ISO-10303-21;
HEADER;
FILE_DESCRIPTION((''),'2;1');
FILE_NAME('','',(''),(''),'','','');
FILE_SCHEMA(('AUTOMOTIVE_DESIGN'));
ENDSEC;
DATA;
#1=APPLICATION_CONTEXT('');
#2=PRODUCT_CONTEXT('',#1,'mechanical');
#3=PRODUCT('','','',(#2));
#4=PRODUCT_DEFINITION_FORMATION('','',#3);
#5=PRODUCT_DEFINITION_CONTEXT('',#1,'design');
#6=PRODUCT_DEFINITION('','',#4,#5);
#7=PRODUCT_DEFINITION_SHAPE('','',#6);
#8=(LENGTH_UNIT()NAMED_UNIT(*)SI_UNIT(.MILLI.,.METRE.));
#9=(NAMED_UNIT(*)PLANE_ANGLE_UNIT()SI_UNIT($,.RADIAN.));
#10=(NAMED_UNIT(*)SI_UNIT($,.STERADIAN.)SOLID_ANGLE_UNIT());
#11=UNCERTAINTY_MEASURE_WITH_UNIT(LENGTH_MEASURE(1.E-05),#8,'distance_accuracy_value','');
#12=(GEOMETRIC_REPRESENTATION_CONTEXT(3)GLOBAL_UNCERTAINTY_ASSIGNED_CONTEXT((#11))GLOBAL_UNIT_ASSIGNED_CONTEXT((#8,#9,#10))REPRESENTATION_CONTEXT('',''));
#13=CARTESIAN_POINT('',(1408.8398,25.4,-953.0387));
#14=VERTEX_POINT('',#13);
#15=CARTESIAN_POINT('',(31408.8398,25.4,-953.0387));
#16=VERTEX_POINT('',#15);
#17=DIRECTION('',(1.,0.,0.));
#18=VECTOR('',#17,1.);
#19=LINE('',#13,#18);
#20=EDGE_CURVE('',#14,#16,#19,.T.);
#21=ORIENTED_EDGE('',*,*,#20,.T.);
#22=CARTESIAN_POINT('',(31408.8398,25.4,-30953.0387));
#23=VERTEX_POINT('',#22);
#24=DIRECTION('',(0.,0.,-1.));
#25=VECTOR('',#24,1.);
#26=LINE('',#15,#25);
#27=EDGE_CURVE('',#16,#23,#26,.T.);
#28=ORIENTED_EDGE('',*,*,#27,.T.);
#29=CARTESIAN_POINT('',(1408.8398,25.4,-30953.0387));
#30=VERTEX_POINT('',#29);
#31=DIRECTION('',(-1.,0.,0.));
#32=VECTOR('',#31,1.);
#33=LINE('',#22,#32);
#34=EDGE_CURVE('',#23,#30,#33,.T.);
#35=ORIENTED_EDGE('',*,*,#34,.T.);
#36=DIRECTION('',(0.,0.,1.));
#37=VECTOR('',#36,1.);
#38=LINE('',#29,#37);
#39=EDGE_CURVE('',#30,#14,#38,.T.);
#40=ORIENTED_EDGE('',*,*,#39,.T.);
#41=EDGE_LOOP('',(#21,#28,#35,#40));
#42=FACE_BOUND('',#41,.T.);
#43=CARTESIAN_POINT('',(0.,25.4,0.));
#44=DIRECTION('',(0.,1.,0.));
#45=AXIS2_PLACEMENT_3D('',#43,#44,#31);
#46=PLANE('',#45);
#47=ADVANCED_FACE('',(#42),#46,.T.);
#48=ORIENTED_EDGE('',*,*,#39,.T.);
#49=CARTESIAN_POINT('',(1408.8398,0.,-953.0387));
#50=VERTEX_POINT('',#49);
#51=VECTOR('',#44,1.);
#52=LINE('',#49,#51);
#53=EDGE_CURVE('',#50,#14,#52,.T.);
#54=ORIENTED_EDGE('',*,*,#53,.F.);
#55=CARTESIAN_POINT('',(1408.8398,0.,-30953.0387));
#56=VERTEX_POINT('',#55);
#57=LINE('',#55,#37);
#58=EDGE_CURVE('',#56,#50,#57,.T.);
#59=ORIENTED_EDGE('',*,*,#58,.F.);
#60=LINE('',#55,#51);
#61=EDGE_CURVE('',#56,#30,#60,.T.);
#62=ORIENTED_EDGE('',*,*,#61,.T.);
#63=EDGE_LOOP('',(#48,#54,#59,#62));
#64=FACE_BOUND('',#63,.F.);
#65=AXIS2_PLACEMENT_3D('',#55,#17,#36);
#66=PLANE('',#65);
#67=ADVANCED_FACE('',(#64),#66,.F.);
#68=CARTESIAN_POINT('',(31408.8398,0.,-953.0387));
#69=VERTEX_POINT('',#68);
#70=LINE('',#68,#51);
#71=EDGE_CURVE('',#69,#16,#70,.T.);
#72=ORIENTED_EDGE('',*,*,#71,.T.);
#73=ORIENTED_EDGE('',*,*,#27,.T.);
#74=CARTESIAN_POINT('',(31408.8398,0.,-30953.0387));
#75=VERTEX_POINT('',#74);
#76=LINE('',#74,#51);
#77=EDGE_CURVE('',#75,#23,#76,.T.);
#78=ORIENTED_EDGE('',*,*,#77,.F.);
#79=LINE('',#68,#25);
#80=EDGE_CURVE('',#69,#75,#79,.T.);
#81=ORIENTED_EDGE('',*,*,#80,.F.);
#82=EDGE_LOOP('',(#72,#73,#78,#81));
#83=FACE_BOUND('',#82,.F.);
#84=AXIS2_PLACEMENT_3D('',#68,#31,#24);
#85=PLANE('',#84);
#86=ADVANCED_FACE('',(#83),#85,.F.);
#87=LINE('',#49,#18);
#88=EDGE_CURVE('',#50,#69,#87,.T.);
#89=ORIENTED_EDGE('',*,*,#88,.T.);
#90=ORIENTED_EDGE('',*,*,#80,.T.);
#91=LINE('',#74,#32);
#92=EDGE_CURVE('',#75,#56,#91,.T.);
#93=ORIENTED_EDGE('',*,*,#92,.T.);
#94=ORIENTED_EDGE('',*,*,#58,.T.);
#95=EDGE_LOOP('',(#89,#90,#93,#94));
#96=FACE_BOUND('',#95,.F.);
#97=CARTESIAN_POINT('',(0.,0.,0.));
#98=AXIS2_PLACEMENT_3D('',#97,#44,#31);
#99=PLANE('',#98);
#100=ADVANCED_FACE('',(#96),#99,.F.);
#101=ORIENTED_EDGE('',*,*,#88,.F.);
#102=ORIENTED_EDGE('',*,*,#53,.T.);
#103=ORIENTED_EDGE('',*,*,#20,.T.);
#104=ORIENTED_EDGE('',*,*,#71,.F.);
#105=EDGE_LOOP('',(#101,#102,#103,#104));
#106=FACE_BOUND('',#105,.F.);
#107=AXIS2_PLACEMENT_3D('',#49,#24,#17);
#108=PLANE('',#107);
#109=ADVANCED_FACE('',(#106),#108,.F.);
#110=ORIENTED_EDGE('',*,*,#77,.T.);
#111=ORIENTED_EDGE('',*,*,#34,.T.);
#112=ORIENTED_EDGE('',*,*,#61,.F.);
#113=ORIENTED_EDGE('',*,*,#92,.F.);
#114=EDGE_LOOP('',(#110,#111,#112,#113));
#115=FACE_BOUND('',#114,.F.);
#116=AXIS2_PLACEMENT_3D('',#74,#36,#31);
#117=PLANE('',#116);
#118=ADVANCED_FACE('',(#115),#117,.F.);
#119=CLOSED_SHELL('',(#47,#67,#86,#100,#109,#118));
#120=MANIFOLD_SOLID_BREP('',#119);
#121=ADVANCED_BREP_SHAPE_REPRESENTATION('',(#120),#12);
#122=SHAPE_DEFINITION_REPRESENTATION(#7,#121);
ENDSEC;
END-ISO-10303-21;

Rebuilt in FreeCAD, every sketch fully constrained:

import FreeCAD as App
import Part
import Sketcher
from FreeCAD import Vector
Q = App.Units.Quantity

doc = App.newDocument("Part")
body = doc.addObject("PartDesign::Body", "Body")

# Sketch on XZ plane
sketch1 = body.newObject("Sketcher::SketchObject", "Sketch")
sketch1.AttachmentSupport = (doc.getObject("XZ_Plane"), [""])
sketch1.MapMode = "FlatFace"
sketch1.addGeometry(Part.LineSegment(Vector(1409, -30953, 0), Vector(1409, -953, 0)), False)
sketch1.addGeometry(Part.LineSegment(Vector(1409, -953, 0), Vector(31409, -953, 0)), False)
sketch1.addGeometry(Part.LineSegment(Vector(31409, -953, 0), Vector(31409, -30953, 0)), False)
sketch1.addGeometry(Part.LineSegment(Vector(31409, -30953, 0), Vector(1409, -30953, 0)), False)
sketch1.addConstraint(Sketcher.Constraint("Coincident", 0, 2, 1, 1))
sketch1.addConstraint(Sketcher.Constraint("Coincident", 1, 2, 2, 1))
sketch1.addConstraint(Sketcher.Constraint("Coincident", 2, 2, 3, 1))
sketch1.addConstraint(Sketcher.Constraint("Coincident", 3, 2, 0, 1))
sketch1.addConstraint(Sketcher.Constraint("Vertical", 0))
sketch1.addConstraint(Sketcher.Constraint("Horizontal", 1))
sketch1.addConstraint(Sketcher.Constraint("Vertical", 2))
sketch1.addConstraint(Sketcher.Constraint("Horizontal", 3))
sketch1.addConstraint(Sketcher.Constraint("Equal", 3, 0))
sketch1.addConstraint(Sketcher.Constraint("DistanceX", 1, 1, 1, 2, Q("30000 mm")))
sketch1.addConstraint(Sketcher.Constraint("DistanceX", -1, 1, 0, 2, Q("1408.8398 mm")))
sketch1.addConstraint(Sketcher.Constraint("DistanceY", 0, 2, -1, 1, Q("953.0387 mm")))
pad1 = body.newObject("PartDesign::Pad", "Pad")
pad1.Profile = sketch1
pad1.Length = 25.4
pad1.Reversed = True

doc.recompute()
